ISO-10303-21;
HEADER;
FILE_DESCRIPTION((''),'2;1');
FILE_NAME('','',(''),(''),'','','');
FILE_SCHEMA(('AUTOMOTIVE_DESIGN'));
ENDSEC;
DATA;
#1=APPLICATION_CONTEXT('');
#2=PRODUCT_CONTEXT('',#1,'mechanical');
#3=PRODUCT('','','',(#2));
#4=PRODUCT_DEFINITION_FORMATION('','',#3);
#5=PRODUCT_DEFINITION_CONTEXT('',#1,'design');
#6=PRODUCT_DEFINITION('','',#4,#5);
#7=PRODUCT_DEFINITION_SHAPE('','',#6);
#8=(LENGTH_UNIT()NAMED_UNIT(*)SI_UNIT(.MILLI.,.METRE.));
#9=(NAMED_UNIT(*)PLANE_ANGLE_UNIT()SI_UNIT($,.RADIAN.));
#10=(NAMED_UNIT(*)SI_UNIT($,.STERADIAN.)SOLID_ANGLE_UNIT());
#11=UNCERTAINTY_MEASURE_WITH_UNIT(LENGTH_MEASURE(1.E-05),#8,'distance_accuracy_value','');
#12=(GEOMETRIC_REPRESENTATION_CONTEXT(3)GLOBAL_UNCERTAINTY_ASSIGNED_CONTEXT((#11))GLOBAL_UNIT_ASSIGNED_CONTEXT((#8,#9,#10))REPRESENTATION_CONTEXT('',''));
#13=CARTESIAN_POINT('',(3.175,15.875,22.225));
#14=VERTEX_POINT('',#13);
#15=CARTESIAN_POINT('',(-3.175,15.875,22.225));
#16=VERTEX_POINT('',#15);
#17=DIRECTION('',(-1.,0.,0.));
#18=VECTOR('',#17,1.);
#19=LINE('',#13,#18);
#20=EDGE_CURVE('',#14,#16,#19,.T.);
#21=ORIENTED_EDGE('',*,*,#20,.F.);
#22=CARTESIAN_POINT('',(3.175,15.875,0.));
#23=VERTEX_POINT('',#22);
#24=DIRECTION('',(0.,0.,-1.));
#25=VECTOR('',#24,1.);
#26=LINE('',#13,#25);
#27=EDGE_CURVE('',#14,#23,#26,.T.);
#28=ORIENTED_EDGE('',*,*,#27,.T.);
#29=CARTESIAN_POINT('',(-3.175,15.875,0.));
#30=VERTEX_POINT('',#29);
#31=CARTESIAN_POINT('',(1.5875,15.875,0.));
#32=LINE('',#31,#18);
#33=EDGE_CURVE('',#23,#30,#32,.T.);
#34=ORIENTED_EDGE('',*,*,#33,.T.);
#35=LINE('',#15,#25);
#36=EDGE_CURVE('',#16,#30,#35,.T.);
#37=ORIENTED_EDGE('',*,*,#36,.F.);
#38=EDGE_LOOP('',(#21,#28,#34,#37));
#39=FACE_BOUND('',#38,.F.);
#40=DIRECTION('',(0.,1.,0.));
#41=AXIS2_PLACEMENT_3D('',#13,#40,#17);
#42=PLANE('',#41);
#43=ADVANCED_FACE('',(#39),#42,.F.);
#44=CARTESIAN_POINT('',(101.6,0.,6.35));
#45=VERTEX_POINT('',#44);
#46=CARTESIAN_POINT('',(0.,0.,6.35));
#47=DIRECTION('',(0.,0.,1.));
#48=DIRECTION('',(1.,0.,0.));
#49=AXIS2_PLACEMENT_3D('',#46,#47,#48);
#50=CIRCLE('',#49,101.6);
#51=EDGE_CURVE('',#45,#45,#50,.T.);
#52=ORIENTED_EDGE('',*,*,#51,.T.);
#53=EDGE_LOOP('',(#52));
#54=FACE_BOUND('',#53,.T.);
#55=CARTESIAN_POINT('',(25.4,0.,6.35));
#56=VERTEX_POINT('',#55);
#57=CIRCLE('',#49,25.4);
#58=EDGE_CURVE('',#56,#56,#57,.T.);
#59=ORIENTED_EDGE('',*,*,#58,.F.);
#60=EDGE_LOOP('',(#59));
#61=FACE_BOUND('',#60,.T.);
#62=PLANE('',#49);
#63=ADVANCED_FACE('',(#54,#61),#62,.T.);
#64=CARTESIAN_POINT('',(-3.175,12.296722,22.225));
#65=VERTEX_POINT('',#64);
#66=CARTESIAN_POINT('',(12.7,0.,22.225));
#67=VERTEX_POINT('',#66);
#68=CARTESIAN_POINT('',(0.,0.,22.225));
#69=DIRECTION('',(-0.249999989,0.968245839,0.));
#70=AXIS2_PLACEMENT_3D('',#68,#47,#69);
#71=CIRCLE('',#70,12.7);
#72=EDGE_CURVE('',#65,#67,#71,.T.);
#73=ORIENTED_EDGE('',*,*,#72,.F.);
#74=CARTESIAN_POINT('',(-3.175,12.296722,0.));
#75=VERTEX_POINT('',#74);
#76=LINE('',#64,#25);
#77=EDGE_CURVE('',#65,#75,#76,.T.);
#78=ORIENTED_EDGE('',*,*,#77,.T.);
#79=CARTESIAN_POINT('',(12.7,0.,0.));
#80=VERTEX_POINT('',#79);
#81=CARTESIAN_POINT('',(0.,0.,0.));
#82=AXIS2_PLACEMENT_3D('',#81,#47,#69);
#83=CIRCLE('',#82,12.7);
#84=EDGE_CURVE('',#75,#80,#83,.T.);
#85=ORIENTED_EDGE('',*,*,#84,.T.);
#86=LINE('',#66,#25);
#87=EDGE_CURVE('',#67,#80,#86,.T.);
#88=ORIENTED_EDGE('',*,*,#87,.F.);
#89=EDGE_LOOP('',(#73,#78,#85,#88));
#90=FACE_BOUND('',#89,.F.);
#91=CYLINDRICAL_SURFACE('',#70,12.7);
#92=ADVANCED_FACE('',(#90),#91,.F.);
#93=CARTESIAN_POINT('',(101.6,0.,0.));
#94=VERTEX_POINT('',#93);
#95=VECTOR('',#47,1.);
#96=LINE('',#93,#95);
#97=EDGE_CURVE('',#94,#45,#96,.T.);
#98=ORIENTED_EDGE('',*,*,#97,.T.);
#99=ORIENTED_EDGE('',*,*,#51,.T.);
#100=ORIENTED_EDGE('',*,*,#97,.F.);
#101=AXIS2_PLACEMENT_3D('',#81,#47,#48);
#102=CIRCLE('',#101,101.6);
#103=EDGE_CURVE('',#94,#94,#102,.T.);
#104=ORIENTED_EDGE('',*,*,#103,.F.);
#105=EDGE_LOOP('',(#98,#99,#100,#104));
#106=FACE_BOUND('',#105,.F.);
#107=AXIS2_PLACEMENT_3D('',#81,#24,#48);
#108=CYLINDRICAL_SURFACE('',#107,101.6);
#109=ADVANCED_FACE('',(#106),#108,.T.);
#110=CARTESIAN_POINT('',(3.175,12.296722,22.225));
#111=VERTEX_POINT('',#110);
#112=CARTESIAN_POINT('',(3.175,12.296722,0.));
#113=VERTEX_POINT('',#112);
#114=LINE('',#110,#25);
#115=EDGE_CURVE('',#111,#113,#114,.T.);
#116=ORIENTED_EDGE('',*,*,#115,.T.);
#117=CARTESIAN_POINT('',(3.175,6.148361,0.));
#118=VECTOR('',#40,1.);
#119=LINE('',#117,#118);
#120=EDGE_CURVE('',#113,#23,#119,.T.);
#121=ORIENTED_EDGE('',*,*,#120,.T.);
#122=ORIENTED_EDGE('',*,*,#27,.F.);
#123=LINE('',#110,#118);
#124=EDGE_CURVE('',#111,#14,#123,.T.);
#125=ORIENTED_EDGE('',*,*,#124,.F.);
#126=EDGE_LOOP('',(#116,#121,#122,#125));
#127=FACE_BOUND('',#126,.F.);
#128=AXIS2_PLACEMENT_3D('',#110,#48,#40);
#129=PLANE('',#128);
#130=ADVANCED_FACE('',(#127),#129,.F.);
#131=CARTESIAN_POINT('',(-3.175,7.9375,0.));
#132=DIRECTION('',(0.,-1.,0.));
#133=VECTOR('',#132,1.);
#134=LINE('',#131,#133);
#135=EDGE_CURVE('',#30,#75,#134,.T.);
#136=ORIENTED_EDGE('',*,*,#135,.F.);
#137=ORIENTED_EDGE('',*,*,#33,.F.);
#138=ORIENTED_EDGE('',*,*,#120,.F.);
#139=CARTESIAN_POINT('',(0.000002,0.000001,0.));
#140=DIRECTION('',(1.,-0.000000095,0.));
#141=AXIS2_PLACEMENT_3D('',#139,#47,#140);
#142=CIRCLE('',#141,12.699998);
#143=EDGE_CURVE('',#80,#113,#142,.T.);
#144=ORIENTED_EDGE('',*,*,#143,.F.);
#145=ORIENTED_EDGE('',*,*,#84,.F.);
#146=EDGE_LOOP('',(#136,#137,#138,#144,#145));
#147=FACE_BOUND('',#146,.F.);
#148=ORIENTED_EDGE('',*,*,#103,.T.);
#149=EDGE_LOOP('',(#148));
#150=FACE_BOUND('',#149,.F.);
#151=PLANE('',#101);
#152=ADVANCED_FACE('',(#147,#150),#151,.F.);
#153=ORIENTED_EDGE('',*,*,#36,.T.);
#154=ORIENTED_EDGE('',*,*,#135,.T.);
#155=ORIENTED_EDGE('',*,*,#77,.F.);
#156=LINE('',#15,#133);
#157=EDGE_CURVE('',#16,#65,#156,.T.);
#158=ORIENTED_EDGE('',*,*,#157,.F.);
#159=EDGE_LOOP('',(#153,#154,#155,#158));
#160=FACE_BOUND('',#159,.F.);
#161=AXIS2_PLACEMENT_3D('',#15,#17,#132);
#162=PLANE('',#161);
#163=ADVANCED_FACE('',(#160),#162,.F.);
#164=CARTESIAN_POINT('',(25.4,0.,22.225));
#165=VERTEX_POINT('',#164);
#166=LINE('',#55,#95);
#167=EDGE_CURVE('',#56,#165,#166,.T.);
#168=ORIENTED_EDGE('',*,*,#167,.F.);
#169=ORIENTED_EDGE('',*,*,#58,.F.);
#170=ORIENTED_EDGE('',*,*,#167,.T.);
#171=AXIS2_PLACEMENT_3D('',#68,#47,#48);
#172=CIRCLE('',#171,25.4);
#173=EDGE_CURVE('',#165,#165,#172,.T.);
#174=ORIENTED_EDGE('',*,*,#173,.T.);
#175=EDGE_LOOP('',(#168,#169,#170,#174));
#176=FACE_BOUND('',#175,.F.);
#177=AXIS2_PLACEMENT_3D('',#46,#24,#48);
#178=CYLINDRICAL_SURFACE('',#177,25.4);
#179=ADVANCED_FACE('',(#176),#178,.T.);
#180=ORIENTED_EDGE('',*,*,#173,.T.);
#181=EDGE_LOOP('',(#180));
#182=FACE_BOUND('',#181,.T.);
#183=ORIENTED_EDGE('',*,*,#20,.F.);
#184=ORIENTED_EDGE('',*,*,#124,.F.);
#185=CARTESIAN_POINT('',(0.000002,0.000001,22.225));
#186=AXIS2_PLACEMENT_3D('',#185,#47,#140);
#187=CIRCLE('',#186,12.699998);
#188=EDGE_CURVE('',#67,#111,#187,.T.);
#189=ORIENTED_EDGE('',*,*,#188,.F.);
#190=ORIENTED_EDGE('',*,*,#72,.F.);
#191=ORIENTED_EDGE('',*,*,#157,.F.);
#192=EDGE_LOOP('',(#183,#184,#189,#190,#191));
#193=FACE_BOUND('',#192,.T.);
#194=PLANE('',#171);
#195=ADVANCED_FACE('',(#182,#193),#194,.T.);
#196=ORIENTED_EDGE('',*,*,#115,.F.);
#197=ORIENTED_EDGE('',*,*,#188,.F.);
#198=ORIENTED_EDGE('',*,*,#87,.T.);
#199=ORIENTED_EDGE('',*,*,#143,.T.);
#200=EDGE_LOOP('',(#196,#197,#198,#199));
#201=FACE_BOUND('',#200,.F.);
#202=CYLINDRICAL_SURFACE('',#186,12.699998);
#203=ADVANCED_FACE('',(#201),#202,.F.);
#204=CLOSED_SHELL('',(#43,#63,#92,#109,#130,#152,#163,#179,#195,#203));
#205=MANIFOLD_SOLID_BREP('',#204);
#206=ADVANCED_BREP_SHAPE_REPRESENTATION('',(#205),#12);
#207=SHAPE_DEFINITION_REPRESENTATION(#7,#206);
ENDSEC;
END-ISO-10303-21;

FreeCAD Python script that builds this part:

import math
import FreeCAD as App
import Part
import Sketcher

V = App.Vector
Q = App.Units.Quantity

doc = App.newDocument("Part")
body = doc.addObject("PartDesign::Body", "Body")

sketch1 = doc.addObject("Sketcher::SketchObject", "Sketch")
body.addObject(sketch1)
sketch1.AttachmentSupport = (doc.XY_Plane, [""])
sketch1.MapMode = "FlatFace"
sketch1.addGeometry(Part.Circle(V(0, 0, 0), V(0, 0, 1), 102), False)
sketch1.addConstraint([
    Sketcher.Constraint("Coincident", 0, 3, -1, 1),
    Sketcher.Constraint("Diameter", 0, Q("8 in")),
])
pad1 = doc.addObject("PartDesign::Pad", "Pad")
body.addObject(pad1)
pad1.Profile = sketch1
pad1.Length = Q("0.25 in")

sketch2 = doc.addObject("Sketcher::SketchObject", "Sketch001")
body.addObject(sketch2)
sketch2.AttachmentSupport = (doc.XY_Plane, [""])
sketch2.MapMode = "FlatFace"
sketch2.AttachmentOffset = App.Placement(V(0, 0, 0.25 * 25.4), App.Rotation())
sketch2.addGeometry(Part.Circle(V(0, 0, 0), V(0, 0, 1), 25), False)
sketch2.addConstraint([
    Sketcher.Constraint("Coincident", 0, 3, -1, 1),
    Sketcher.Constraint("Diameter", 0, Q("2 in")),
])
pad2 = doc.addObject("PartDesign::Pad", "Pad001")
body.addObject(pad2)
pad2.Profile = sketch2
pad2.Length = Q("0.625 in")

sketch3 = doc.addObject("Sketcher::SketchObject", "Sketch002")
body.addObject(sketch3)
sketch3.AttachmentSupport = (doc.XY_Plane, [""])
sketch3.MapMode = "FlatFace"
sketch3.AttachmentOffset = App.Placement(V(0, 0, 0.875 * 25.4), App.Rotation())
sketch3.addGeometry([
    Part.ArcOfCircle(Part.Circle(V(0, 0, 0), V(0, 0, 1), 12.7), math.radians(104), math.radians(360)),
    Part.ArcOfCircle(Part.Circle(V(0, 0, 0), V(0, 0, 1), 12.7), math.radians(0), math.radians(76)),
    Part.LineSegment(V(3.2, 12.3, 0), V(3.2, 15.9, 0)),
    Part.LineSegment(V(3.2, 15.9, 0), V(-3.2, 15.9, 0)),
    Part.LineSegment(V(-3.2, 15.9, 0), V(-3.2, 12.3, 0)),
], False)
sketch3.addConstraint([
    Sketcher.Constraint("Tangent", 0, 2, 1, 1),
    Sketcher.Constraint("Coincident", 1, 2, 2, 1),
    Sketcher.Constraint("Coincident", 2, 2, 3, 1),
    Sketcher.Constraint("Coincident", 3, 2, 4, 1),
    Sketcher.Constraint("Coincident", 4, 2, 0, 1),
    Sketcher.Constraint("Vertical", 2),
    Sketcher.Constraint("Horizontal", 3),
    Sketcher.Constraint("Vertical", 4),
    Sketcher.Constraint("Coincident", 0, 3, -1, 1),
    Sketcher.Constraint("Equal", 0, 1),
    Sketcher.Constraint("PointOnObject", 0, 2, -1),
    Sketcher.Constraint("Horizontal", 1, 2, 4, 2),
    Sketcher.Constraint("Radius", 0, Q("0.5 in")),
    Sketcher.Constraint("DistanceX", 3, 2, 3, 1, Q("0.25 in")),
    Sketcher.Constraint("DistanceY", -1, 1, 2, 2, Q("0.625 in")),
])
pocket1 = doc.addObject("PartDesign::Pocket", "Pocket")
body.addObject(pocket1)
pocket1.Profile = sketch3
pocket1.Type = "ThroughAll"

doc.recompute()
